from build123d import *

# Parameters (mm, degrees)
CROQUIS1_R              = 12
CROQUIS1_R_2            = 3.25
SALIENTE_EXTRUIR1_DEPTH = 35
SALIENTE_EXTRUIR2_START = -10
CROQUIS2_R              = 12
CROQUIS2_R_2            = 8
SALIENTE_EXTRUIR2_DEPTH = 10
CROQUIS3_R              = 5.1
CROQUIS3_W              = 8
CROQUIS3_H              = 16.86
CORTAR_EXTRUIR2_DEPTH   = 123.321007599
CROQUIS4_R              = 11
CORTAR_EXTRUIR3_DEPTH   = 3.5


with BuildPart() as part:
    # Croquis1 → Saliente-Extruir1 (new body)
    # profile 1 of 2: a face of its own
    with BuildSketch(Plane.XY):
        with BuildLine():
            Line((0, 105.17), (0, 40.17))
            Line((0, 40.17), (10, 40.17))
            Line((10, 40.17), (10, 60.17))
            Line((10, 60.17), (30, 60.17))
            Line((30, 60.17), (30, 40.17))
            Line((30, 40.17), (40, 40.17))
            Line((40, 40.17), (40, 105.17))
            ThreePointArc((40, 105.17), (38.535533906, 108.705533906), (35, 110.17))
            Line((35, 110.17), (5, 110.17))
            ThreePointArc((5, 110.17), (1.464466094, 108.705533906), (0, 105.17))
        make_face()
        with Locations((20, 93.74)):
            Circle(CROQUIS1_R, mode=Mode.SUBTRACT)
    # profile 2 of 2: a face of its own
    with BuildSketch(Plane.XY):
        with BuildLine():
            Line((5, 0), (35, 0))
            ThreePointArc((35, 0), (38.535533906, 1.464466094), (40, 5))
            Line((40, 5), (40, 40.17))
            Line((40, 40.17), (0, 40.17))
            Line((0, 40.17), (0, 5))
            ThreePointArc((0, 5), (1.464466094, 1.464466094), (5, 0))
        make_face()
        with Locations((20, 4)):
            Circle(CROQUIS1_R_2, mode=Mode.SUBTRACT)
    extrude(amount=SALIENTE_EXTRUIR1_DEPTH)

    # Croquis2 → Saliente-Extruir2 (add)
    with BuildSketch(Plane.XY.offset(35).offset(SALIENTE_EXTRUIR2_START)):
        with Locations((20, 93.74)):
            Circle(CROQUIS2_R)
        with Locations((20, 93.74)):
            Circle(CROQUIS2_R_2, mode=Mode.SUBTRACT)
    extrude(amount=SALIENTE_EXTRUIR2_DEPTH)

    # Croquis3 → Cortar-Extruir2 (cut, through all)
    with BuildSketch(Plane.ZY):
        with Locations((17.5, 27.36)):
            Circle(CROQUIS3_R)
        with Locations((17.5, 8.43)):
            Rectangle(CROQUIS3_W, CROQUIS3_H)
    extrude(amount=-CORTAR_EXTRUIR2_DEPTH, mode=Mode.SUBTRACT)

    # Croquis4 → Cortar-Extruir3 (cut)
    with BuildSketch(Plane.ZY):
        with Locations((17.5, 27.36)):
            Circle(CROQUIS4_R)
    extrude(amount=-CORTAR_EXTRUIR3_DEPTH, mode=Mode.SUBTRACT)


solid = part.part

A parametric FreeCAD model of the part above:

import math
import FreeCAD as App
import Part
import Sketcher

doc = App.newDocument("Part")
body = doc.addObject("PartDesign::Body", "Body")

sketch1 = body.newObject("Sketcher::SketchObject", "Sketch")
sketch1.AttachmentSupport = (doc.getObject("XY_Plane"), [""])
sketch1.MapMode = "FlatFace"
sketch1.addGeometry(Part.LineSegment(App.Vector(0, 105.2, 0), App.Vector(0, 5, 0)), False)
sketch1.addGeometry(Part.ArcOfCircle(Part.Circle(App.Vector(5, 5, 0), App.Vector(0, 0, 1), 5), math.radians(180), math.radians(270)), False)
sketch1.addGeometry(Part.LineSegment(App.Vector(5, 0, 0), App.Vector(35, 0, 0)), False)
sketch1.addGeometry(Part.ArcOfCircle(Part.Circle(App.Vector(35, 5, 0), App.Vector(0, 0, 1), 5), math.radians(-90), math.radians(0)), False)
sketch1.addGeometry(Part.LineSegment(App.Vector(40, 5, 0), App.Vector(40, 105.2, 0)), False)
sketch1.addGeometry(Part.ArcOfCircle(Part.Circle(App.Vector(35, 105.2, 0), App.Vector(0, 0, 1), 5), math.radians(0), math.radians(90)), False)
sketch1.addGeometry(Part.LineSegment(App.Vector(35, 110.2, 0), App.Vector(5, 110.2, 0)), False)
sketch1.addGeometry(Part.ArcOfCircle(Part.Circle(App.Vector(5, 105.2, 0), App.Vector(0, 0, 1), 5), math.radians(90), math.radians(180)), False)
sketch1.addGeometry(Part.LineSegment(App.Vector(10, 40.2, 0), App.Vector(10, 60.2, 0)), False)
sketch1.addGeometry(Part.LineSegment(App.Vector(10, 60.2, 0), App.Vector(30, 60.2, 0)), False)
sketch1.addGeometry(Part.LineSegment(App.Vector(30, 60.2, 0), App.Vector(30, 40.2, 0)), False)
sketch1.addGeometry(Part.LineSegment(App.Vector(30, 40.2, 0), App.Vector(10, 40.2, 0)), False)
sketch1.addGeometry(Part.Circle(App.Vector(20, 93.7, 0), App.Vector(0, 0, 1), 12), False)
sketch1.addGeometry(Part.Circle(App.Vector(20, 4, 0), App.Vector(0, 0, 1), 3.2), False)
sketch1.addConstraint(Sketcher.Constraint("Tangent", 0, 2, 1, 1))
sketch1.addConstraint(Sketcher.Constraint("Tangent", 1, 2, 2, 1))
sketch1.addConstraint(Sketcher.Constraint("Tangent", 2, 2, 3, 1))
sketch1.addConstraint(Sketcher.Constraint("Tangent", 3, 2, 4, 1))
sketch1.addConstraint(Sketcher.Constraint("Tangent", 4, 2, 5, 1))
sketch1.addConstraint(Sketcher.Constraint("Tangent", 5, 2, 6, 1))
sketch1.addConstraint(Sketcher.Constraint("Tangent", 6, 2, 7, 1))
sketch1.addConstraint(Sketcher.Constraint("Tangent", 7, 2, 0, 1))
sketch1.addConstraint(Sketcher.Constraint("Coincident", 8, 2, 9, 1))
sketch1.addConstraint(Sketcher.Constraint("Coincident", 9, 2, 10, 1))
sketch1.addConstraint(Sketcher.Constraint("Coincident", 10, 2, 11, 1))
sketch1.addConstraint(Sketcher.Constraint("Coincident", 11, 2, 8, 1))
sketch1.addConstraint(Sketcher.Constraint("Vertical", 0))
sketch1.addConstraint(Sketcher.Constraint("Horizontal", 2))
sketch1.addConstraint(Sketcher.Constraint("Vertical", 4))
sketch1.addConstraint(Sketcher.Constraint("Horizontal", 6))
sketch1.addConstraint(Sketcher.Constraint("Vertical", 8))
sketch1.addConstraint(Sketcher.Constraint("Horizontal", 9))
sketch1.addConstraint(Sketcher.Constraint("Vertical", 10))
sketch1.addConstraint(Sketcher.Constraint("Horizontal", 11))
sketch1.addConstraint(Sketcher.Constraint("Equal", 1, 3))
sketch1.addConstraint(Sketcher.Constraint("Equal", 3, 5))
sketch1.addConstraint(Sketcher.Constraint("Equal", 5, 7))
sketch1.addConstraint(Sketcher.Constraint("PointOnObject", 0, 2, -2))
sketch1.addConstraint(Sketcher.Constraint("PointOnObject", 1, 2, -1))
sketch1.addConstraint(Sketcher.Constraint("Vertical", 12, 3, 13, 3))
sketch1.addConstraint(Sketcher.Constraint("Equal", 11, 8))
sketch1.addConstraint(Sketcher.Constraint("Diameter", 12, 24.0))
sketch1.addConstraint(Sketcher.Constraint("Radius", 1, 5.0))
sketch1.addConstraint(Sketcher.Constraint("Diameter", 13, 6.5))
sketch1.addConstraint(Sketcher.Constraint("DistanceX", 2, 1, 2, 2, 30.0))
sketch1.addConstraint(Sketcher.Constraint("DistanceX", 9, 1, 9, 2, 20.0))
sketch1.addConstraint(Sketcher.Constraint("DistanceX", -1, 1, 12, 3, 20.0))
sketch1.addConstraint(Sketcher.Constraint("DistanceY", -1, 1, 13, 3, 4.0))
sketch1.addConstraint(Sketcher.Constraint("DistanceX", -1, 1, 8, 2, 10.0))
sketch1.addConstraint(Sketcher.Constraint("DistanceY", 8, 2, 7, 3, 45.0))
sketch1.addConstraint(Sketcher.Constraint("DistanceY", 0, 2, 0, 1, 100.17))
sketch1.addConstraint(Sketcher.Constraint("DistanceY", -1, 1, 12, 3, 93.74))
pad1 = body.newObject("PartDesign::Pad", "Pad")
pad1.Profile = sketch1
pad1.Length = 35

sketch2 = body.newObject("Sketcher::SketchObject", "Sketch001")
sketch2.AttachmentSupport = (doc.getObject("XY_Plane"), [""])
sketch2.MapMode = "FlatFace"
sketch2.AttachmentOffset = App.Placement(App.Vector(0, 0, 25), App.Rotation())
sketch2.addGeometry(Part.Circle(App.Vector(20, 94, 0), App.Vector(0, 0, 1), 12), False)
sketch2.addGeometry(Part.Circle(App.Vector(20, 94, 0), App.Vector(0, 0, 1), 8), False)
sketch2.addConstraint(Sketcher.Constraint("Coincident", 1, 3, 0, 3))
sketch2.addConstraint(Sketcher.Constraint("Diameter", 0, 24.0))
sketch2.addConstraint(Sketcher.Constraint("Diameter", 1, 16.0))
sketch2.addConstraint(Sketcher.Constraint("DistanceX", -1, 1, 0, 3, 20.0))
sketch2.addConstraint(Sketcher.Constraint("DistanceY", -1, 1, 0, 3, 93.74))
pad2 = body.newObject("PartDesign::Pad", "Pad001")
pad2.Profile = sketch2
pad2.Length = 10

sketch3 = body.newObject("Sketcher::SketchObject", "Sketch002")
sketch3.AttachmentSupport = (doc.getObject("YZ_Plane"), [""])
sketch3.MapMode = "FlatFace"
sketch3.addGeometry(Part.Circle(App.Vector(27, 18, 0), App.Vector(0, 0, 1), 5), False)
sketch3.addGeometry(Part.LineSegment(App.Vector(17, 14, 0), App.Vector(0, 14, 0)), False)
sketch3.addGeometry(Part.LineSegment(App.Vector(0, 14, 0), App.Vector(0, 22, 0)), False)
sketch3.addGeometry(Part.LineSegment(App.Vector(0, 22, 0), App.Vector(17, 22, 0)), False)
sketch3.addGeometry(Part.LineSegment(App.Vector(17, 22, 0), App.Vector(17, 14, 0)), False)
sketch3.addConstraint(Sketcher.Constraint("Coincident", 1, 2, 2, 1))
sketch3.addConstraint(Sketcher.Constraint("Coincident", 2, 2, 3, 1))
sketch3.addConstraint(Sketcher.Constraint("Coincident", 3, 2, 4, 1))
sketch3.addConstraint(Sketcher.Constraint("Coincident", 4, 2, 1, 1))
sketch3.addConstraint(Sketcher.Constraint("Horizontal", 1))
sketch3.addConstraint(Sketcher.Constraint("Vertical", 2))
sketch3.addConstraint(Sketcher.Constraint("Horizontal", 3))
sketch3.addConstraint(Sketcher.Constraint("Vertical", 4))
sketch3.addConstraint(Sketcher.Constraint("PointOnObject", 1, 2, -2))
sketch3.addConstraint(Sketcher.Constraint("Diameter", 0, 10.2))
sketch3.addConstraint(Sketcher.Constraint("DistanceY", 2, 1, 2, 2, 8.0))
sketch3.addConstraint(Sketcher.Constraint("DistanceY", 1, 2, 0, 3, 4.0))
sketch3.addConstraint(Sketcher.Constraint("DistanceX", 1, 2, 1, 1, 16.86))
sketch3.addConstraint(Sketcher.Constraint("DistanceY", -1, 1, 0, 3, 17.5))
sketch3.addConstraint(Sketcher.Constraint("DistanceX", 3, 2, 0, 3, 10.5))
pocket1 = body.newObject("PartDesign::Pocket", "Pocket")
pocket1.Profile = sketch3
pocket1.Type = "ThroughAll"
pocket1.Reversed = True

sketch4 = body.newObject("Sketcher::SketchObject", "Sketch003")
sketch4.AttachmentSupport = (doc.getObject("YZ_Plane"), [""])
sketch4.MapMode = "FlatFace"
sketch4.addGeometry(Part.Circle(App.Vector(27, 18, 0), App.Vector(0, 0, 1), 11), False)
sketch4.addConstraint(Sketcher.Constraint("Diameter", 0, 22.0))
sketch4.addConstraint(Sketcher.Constraint("DistanceY", -1, 1, 0, 3, 17.5))
sketch4.addConstraint(Sketcher.Constraint("DistanceX", -1, 1, 0, 3, 27.36))
pocket2 = body.newObject("PartDesign::Pocket", "Pocket001")
pocket2.Profile = sketch4
pocket2.Length = 3.5
pocket2.Reversed = True

doc.recompute()
